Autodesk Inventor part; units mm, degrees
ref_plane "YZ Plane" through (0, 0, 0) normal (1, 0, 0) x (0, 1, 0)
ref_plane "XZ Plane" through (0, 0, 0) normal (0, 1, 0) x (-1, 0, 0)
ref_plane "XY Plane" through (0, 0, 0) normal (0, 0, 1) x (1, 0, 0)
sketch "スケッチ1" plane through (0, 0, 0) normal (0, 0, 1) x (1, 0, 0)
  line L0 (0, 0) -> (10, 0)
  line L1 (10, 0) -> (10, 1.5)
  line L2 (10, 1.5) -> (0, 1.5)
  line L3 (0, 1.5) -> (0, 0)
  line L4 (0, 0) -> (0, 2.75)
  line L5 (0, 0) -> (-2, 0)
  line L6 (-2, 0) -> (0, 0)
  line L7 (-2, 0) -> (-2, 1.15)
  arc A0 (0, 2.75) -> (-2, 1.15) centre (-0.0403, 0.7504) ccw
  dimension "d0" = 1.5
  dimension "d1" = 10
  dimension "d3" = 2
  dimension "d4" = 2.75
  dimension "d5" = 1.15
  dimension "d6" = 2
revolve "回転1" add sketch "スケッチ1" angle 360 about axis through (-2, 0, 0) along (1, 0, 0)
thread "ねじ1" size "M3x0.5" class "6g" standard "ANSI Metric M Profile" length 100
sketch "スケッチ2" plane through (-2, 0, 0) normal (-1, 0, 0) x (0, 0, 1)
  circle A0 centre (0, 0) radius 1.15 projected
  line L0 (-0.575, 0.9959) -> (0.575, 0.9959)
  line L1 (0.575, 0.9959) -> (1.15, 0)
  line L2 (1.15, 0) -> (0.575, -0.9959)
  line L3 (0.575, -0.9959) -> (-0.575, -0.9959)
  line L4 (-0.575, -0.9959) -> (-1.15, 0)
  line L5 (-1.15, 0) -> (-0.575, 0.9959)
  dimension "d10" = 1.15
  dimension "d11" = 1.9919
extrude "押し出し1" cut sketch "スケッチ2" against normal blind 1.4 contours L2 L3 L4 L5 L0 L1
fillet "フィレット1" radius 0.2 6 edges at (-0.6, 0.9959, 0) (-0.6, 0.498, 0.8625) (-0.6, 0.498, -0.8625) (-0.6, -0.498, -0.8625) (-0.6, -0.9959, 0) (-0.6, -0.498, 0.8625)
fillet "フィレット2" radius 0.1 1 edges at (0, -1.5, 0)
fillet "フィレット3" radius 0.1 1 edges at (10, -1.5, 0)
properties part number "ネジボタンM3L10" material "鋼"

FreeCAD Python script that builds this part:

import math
import FreeCAD as App
import Part
import Sketcher

V = App.Vector


def edges_at(feature, points):
    """Names of the edges that pass closest to the given points."""
    edges = feature.Shape.Edges
    near = lambda p: min(range(len(edges)), key=lambda i: edges[i].distToShape(Part.Vertex(*p))[0])
    return sorted({f"Edge{near(p) + 1}" for p in points})

doc = App.newDocument("Part")
body = doc.addObject("PartDesign::Body", "Body")

# Sketch on XY plane
sketch1 = body.newObject("Sketcher::SketchObject", "Sketch")
sketch1.AttachmentSupport = (doc.getObject("XY_Plane"), [""])
sketch1.MapMode = "FlatFace"
sketch1.addGeometry(Part.LineSegment(V(10, 1.5, 0), V(0, 1.5, 0)), False)
sketch1.addGeometry(Part.LineSegment(V(0, 1.5, 0), V(0, 2.8, 0)), False)
sketch1.addGeometry(Part.ArcOfCircle(Part.Circle(V(0, 0.8, 0), V(0, 0, 1), 2), math.radians(89), math.radians(168)), False)
sketch1.addGeometry(Part.LineSegment(V(-2, 1.1, 0), V(-2, 0, 0)), False)
sketch1.addGeometry(Part.LineSegment(V(-2, 0, 0), V(10, 0, 0)), False)
sketch1.addGeometry(Part.LineSegment(V(10, 0, 0), V(10, 1.5, 0)), False)
sketch1.addConstraint(Sketcher.Constraint("Coincident", 0, 2, 1, 1))
sketch1.addConstraint(Sketcher.Constraint("Coincident", 1, 2, 2, 1))
sketch1.addConstraint(Sketcher.Constraint("Coincident", 2, 2, 3, 1))
sketch1.addConstraint(Sketcher.Constraint("Coincident", 3, 2, 4, 1))
sketch1.addConstraint(Sketcher.Constraint("Coincident", 4, 2, 5, 1))
sketch1.addConstraint(Sketcher.Constraint("Coincident", 5, 2, 0, 1))
sketch1.addConstraint(Sketcher.Constraint("Horizontal", 0))
sketch1.addConstraint(Sketcher.Constraint("Vertical", 1))
sketch1.addConstraint(Sketcher.Constraint("Vertical", 3))
sketch1.addConstraint(Sketcher.Constraint("Horizontal", 4))
sketch1.addConstraint(Sketcher.Constraint("Vertical", 5))
sketch1.addConstraint(Sketcher.Constraint("PointOnObject", 0, 2, -2))
sketch1.addConstraint(Sketcher.Constraint("PointOnObject", 3, 2, -1))
sketch1.addConstraint(Sketcher.Constraint("Radius", 2, 2.0))
sketch1.addConstraint(Sketcher.Constraint("DistanceX", 0, 2, 0, 1, 10.0))
sketch1.addConstraint(Sketcher.Constraint("DistanceY", 5, 1, 5, 2, 1.5))
sketch1.addConstraint(Sketcher.Constraint("DistanceX", 2, 2, -1, 1, 2.0))
sketch1.addConstraint(Sketcher.Constraint("DistanceY", 3, 2, 3, 1, 1.15))
sketch1.addConstraint(Sketcher.Constraint("DistanceY", -1, 1, 1, 2, 2.75))
revolution = body.newObject("PartDesign::Revolution", "Revolution")
revolution.Profile = sketch1
revolution.ReferenceAxis = (sketch1, ["H_Axis"])
revolution.Angle = 360

# Sketch on YZ plane
sketch2 = body.newObject("Sketcher::SketchObject", "Sketch001")
sketch2.AttachmentSupport = (doc.getObject("YZ_Plane"), [""])
sketch2.MapMode = "FlatFace"
sketch2.AttachmentOffset = App.Placement(V(0, 0, -2), App.Rotation())
sketch2.addGeometry(Part.LineSegment(V(-1, 0.6, 0), V(0, 1.1, 0)), False)
sketch2.addGeometry(Part.LineSegment(V(0, 1.1, 0), V(1, 0.6, 0)), False)
sketch2.addGeometry(Part.LineSegment(V(1, 0.6, 0), V(1, -0.6, 0)), False)
sketch2.addGeometry(Part.LineSegment(V(1, -0.6, 0), V(0, -1.1, 0)), False)
sketch2.addGeometry(Part.LineSegment(V(0, -1.1, 0), V(-1, -0.6, 0)), False)
sketch2.addGeometry(Part.LineSegment(V(-1, -0.6, 0), V(-1, 0.6, 0)), False)
sketch2.addConstraint(Sketcher.Constraint("Coincident", 0, 2, 1, 1))
sketch2.addConstraint(Sketcher.Constraint("Coincident", 1, 2, 2, 1))
sketch2.addConstraint(Sketcher.Constraint("Coincident", 2, 2, 3, 1))
sketch2.addConstraint(Sketcher.Constraint("Coincident", 3, 2, 4, 1))
sketch2.addConstraint(Sketcher.Constraint("Coincident", 4, 2, 5, 1))
sketch2.addConstraint(Sketcher.Constraint("Coincident", 5, 2, 0, 1))
sketch2.addConstraint(Sketcher.Constraint("Vertical", 2))
sketch2.addConstraint(Sketcher.Constraint("Vertical", 5))
sketch2.addConstraint(Sketcher.Constraint("Symmetric", 0, 2, 3, 2, -1, 1))
sketch2.addConstraint(Sketcher.Constraint("Symmetric", 1, 2, 4, 2, -1, 1))
sketch2.addConstraint(Sketcher.Constraint("PointOnObject", 0, 2, -2))
sketch2.addConstraint(Sketcher.Constraint("Parallel", 0, 3))
sketch2.addConstraint(Sketcher.Constraint("Horizontal", 2, 2, 4, 2))
sketch2.addConstraint(Sketcher.Constraint("DistanceY", 2, 2, 2, 1, 1.15))
sketch2.addConstraint(Sketcher.Constraint("Distance", 0, 1.15))
sketch2.addConstraint(Sketcher.Constraint("DistanceY", -1, 1, 0, 2, 1.15))
pocket1 = body.newObject("PartDesign::Pocket", "Pocket")
pocket1.Profile = sketch2
pocket1.Length = 1.4
pocket1.Reversed = True
doc.recompute()

fillet = body.newObject("PartDesign::Fillet", "Fillet")
fillet.Base = (pocket1, edges_at(pocket1, [
    (-0.6, 0.996, 0),
    (-0.6, 0.498, 0.863),
    (-0.6, 0.498, -0.863),
    (-0.6, -0.498, -0.863),
    (-0.6, -0.996, 0),
    (-0.6, -0.498, 0.863),
]))
fillet.Radius = 0.2
doc.recompute()

fillet2 = body.newObject("PartDesign::Fillet", "Fillet001")
fillet2.Base = (fillet, edges_at(fillet, [(0, -1.5, 0)]))
fillet2.Radius = 0.1
doc.recompute()

fillet3 = body.newObject("PartDesign::Fillet", "Fillet002")
fillet3.Base = (fillet2, edges_at(fillet2, [(10, -1.5, 0)]))
fillet3.Radius = 0.1

doc.recompute()
